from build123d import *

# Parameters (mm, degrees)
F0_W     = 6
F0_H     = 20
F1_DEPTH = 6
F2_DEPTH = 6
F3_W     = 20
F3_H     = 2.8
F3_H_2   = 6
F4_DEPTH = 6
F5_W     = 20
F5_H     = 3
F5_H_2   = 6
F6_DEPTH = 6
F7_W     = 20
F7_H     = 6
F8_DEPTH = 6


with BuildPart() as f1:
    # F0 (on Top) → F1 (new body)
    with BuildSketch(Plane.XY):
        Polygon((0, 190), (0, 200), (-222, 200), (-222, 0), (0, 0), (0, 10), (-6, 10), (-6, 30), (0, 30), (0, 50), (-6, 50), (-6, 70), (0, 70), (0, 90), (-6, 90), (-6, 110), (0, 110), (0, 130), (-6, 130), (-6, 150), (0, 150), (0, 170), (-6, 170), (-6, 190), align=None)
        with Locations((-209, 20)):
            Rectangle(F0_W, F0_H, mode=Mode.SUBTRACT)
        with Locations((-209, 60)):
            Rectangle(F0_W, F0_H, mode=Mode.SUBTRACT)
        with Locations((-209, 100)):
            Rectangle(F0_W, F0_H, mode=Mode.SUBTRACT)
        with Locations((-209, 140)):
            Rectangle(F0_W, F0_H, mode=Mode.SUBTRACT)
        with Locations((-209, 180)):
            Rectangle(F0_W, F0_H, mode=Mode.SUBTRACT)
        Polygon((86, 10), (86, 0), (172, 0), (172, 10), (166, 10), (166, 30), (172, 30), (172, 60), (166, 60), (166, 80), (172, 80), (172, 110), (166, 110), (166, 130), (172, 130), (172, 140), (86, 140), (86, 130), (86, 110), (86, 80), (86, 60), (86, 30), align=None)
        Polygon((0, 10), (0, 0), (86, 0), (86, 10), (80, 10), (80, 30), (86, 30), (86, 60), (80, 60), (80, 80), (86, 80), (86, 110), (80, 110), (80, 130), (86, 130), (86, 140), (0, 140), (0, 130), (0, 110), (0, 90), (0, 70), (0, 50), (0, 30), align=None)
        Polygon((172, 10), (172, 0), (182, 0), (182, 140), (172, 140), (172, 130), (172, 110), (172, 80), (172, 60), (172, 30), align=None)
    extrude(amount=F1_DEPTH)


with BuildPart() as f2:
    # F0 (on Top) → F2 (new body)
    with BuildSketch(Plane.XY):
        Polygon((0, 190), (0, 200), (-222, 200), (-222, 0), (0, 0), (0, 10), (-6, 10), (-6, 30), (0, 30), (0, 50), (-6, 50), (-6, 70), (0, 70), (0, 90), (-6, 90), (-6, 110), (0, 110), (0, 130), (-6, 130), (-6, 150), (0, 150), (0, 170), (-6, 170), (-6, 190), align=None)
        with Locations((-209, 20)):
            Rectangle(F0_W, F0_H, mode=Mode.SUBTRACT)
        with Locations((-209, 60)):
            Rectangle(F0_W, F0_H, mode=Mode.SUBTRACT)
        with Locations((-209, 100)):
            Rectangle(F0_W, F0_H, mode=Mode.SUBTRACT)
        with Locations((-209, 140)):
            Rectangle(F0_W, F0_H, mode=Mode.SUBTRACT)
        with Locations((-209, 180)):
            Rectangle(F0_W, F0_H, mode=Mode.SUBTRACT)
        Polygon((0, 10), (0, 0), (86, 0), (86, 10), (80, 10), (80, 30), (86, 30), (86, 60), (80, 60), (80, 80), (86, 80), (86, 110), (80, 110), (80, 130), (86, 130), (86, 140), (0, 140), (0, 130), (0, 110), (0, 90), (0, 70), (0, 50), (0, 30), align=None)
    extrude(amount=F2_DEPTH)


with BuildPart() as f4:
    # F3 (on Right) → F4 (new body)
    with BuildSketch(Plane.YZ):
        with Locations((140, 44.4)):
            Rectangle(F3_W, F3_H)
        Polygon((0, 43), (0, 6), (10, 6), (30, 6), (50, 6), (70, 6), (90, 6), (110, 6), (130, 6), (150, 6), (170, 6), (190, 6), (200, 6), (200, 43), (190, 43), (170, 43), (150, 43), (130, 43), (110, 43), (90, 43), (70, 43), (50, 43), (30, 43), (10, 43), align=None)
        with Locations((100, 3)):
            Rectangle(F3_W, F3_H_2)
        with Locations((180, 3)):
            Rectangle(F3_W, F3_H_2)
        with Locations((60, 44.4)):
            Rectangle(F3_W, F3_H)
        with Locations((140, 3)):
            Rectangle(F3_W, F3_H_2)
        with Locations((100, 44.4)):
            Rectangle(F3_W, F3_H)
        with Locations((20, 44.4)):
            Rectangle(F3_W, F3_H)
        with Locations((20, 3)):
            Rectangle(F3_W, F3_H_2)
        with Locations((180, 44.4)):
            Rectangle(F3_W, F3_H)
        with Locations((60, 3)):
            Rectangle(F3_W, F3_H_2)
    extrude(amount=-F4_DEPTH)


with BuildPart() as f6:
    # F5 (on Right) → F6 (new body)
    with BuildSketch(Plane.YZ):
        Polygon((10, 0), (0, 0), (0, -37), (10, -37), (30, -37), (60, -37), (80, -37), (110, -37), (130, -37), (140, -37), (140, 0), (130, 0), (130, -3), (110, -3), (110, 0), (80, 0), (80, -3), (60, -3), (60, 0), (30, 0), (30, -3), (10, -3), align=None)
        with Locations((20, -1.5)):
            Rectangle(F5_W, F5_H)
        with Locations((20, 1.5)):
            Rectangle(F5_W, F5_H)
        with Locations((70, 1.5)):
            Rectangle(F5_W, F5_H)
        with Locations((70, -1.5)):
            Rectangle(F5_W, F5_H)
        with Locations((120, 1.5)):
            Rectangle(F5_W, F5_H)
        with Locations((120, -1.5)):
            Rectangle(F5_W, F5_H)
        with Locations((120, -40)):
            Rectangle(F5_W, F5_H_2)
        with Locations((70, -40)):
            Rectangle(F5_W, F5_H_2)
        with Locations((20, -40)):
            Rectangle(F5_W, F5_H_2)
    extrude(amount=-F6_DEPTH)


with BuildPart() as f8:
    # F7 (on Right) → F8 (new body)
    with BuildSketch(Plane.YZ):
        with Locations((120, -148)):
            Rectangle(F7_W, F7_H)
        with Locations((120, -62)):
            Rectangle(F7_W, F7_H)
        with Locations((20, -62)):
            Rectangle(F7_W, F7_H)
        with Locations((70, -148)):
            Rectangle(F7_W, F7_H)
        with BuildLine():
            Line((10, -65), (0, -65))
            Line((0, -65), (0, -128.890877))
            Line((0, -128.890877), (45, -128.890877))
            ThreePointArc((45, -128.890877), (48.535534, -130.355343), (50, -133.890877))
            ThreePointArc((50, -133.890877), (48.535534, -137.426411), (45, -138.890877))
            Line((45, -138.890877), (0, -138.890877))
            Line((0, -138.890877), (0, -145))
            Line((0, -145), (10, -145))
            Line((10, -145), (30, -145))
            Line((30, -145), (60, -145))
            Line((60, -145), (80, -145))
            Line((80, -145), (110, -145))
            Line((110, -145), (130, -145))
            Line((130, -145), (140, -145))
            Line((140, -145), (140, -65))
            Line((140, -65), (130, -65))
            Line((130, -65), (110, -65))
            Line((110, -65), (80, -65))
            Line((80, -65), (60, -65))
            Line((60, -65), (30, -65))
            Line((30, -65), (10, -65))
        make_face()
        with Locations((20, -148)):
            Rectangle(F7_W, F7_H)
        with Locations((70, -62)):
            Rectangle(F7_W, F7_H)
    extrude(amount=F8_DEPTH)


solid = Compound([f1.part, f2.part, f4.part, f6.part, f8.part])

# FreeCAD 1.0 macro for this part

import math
import FreeCAD as App
import Part
import Sketcher

V = App.Vector


def add_polygon(sketch, points):
    """Adds a closed chain of lines whose ends are joined by coincident constraints."""
    first, n = sketch.GeometryCount, len(points)
    for a, b in zip(points, points[1:] + points[:1]):
        sketch.addGeometry(Part.LineSegment(App.Vector(*a, 0), App.Vector(*b, 0)), False)
    for i in range(n):
        sketch.addConstraint(Sketcher.Constraint("Coincident", first + i, 2, first + (i + 1) % n, 1))

doc = App.newDocument("Part")
body = doc.addObject("PartDesign::Body", "Body")

sketch1 = body.newObject("Sketcher::SketchObject", "Sketch")
sketch1.AttachmentSupport = (doc.getObject("XY_Plane"), [""])
sketch1.MapMode = "FlatFace"
add_polygon(sketch1, [(-6, 170), (-6, 190), (0, 190), (0, 200), (-222, 200), (-222, 0), (182, 0), (182, 140), (0, 140), (0, 130), (-6, 130), (-6, 150), (0, 150), (0, 170)])
add_polygon(sketch1, [(172, 10), (166, 10), (166, 30), (172, 30)])
add_polygon(sketch1, [(166, 130), (172, 130), (172, 110), (166, 110)])
add_polygon(sketch1, [(172, 60), (166, 60), (166, 80), (172, 80)])
add_polygon(sketch1, [(-206, 10), (-212, 10), (-212, 30), (-206, 30)])
add_polygon(sketch1, [(-206, 50), (-212, 50), (-212, 70), (-206, 70)])
add_polygon(sketch1, [(-6, 30), (0, 30), (0, 10), (-6, 10)])
add_polygon(sketch1, [(86, 10), (80, 10), (80, 30), (86, 30)])
add_polygon(sketch1, [(-6, 70), (0, 70), (0, 50), (-6, 50)])
add_polygon(sketch1, [(86, 60), (80, 60), (80, 80), (86, 80)])
add_polygon(sketch1, [(-206, 90), (-212, 90), (-212, 110), (-206, 110)])
add_polygon(sketch1, [(-206, 130), (-212, 130), (-212, 150), (-206, 150)])
add_polygon(sketch1, [(-206, 170), (-212, 170), (-212, 190), (-206, 190)])
add_polygon(sketch1, [(-6, 110), (0, 110), (0, 90), (-6, 90)])
add_polygon(sketch1, [(86, 110), (80, 110), (80, 130), (86, 130)])
sketch1.addConstraint(Sketcher.Constraint("Vertical", 0))
sketch1.addConstraint(Sketcher.Constraint("Horizontal", 1))
sketch1.addConstraint(Sketcher.Constraint("Vertical", 2))
sketch1.addConstraint(Sketcher.Constraint("Horizontal", 3))
sketch1.addConstraint(Sketcher.Constraint("Vertical", 4))
sketch1.addConstraint(Sketcher.Constraint("Horizontal", 5))
sketch1.addConstraint(Sketcher.Constraint("Vertical", 6))
sketch1.addConstraint(Sketcher.Constraint("Horizontal", 7))
sketch1.addConstraint(Sketcher.Constraint("Vertical", 8))
sketch1.addConstraint(Sketcher.Constraint("Horizontal", 9))
sketch1.addConstraint(Sketcher.Constraint("Vertical", 10))
sketch1.addConstraint(Sketcher.Constraint("Horizontal", 11))
sketch1.addConstraint(Sketcher.Constraint("Vertical", 12))
sketch1.addConstraint(Sketcher.Constraint("Horizontal", 13))
sketch1.addConstraint(Sketcher.Constraint("Horizontal", 14))
sketch1.addConstraint(Sketcher.Constraint("Vertical", 15))
sketch1.addConstraint(Sketcher.Constraint("Horizontal", 16))
sketch1.addConstraint(Sketcher.Constraint("Vertical", 17))
sketch1.addConstraint(Sketcher.Constraint("Horizontal", 18))
sketch1.addConstraint(Sketcher.Constraint("Vertical", 19))
sketch1.addConstraint(Sketcher.Constraint("Horizontal", 20))
sketch1.addConstraint(Sketcher.Constraint("Vertical", 21))
sketch1.addConstraint(Sketcher.Constraint("Horizontal", 22))
sketch1.addConstraint(Sketcher.Constraint("Vertical", 23))
sketch1.addConstraint(Sketcher.Constraint("Horizontal", 24))
sketch1.addConstraint(Sketcher.Constraint("Vertical", 25))
sketch1.addConstraint(Sketcher.Constraint("Horizontal", 26))
sketch1.addConstraint(Sketcher.Constraint("Vertical", 27))
sketch1.addConstraint(Sketcher.Constraint("Horizontal", 28))
sketch1.addConstraint(Sketcher.Constraint("Vertical", 29))
sketch1.addConstraint(Sketcher.Constraint("Horizontal", 30))
sketch1.addConstraint(Sketcher.Constraint("Vertical", 31))
sketch1.addConstraint(Sketcher.Constraint("Horizontal", 32))
sketch1.addConstraint(Sketcher.Constraint("Vertical", 33))
sketch1.addConstraint(Sketcher.Constraint("Horizontal", 34))
sketch1.addConstraint(Sketcher.Constraint("Vertical", 35))
sketch1.addConstraint(Sketcher.Constraint("Horizontal", 36))
sketch1.addConstraint(Sketcher.Constraint("Vertical", 37))
sketch1.addConstraint(Sketcher.Constraint("Horizontal", 38))
sketch1.addConstraint(Sketcher.Constraint("Vertical", 39))
sketch1.addConstraint(Sketcher.Constraint("Horizontal", 40))
sketch1.addConstraint(Sketcher.Constraint("Vertical", 41))
sketch1.addConstraint(Sketcher.Constraint("Horizontal", 42))
sketch1.addConstraint(Sketcher.Constraint("Vertical", 43))
sketch1.addConstraint(Sketcher.Constraint("Horizontal", 44))
sketch1.addConstraint(Sketcher.Constraint("Vertical", 45))
sketch1.addConstraint(Sketcher.Constraint("Horizontal", 46))
sketch1.addConstraint(Sketcher.Constraint("Vertical", 47))
sketch1.addConstraint(Sketcher.Constraint("Horizontal", 48))
sketch1.addConstraint(Sketcher.Constraint("Vertical", 49))
sketch1.addConstraint(Sketcher.Constraint("Horizontal", 50))
sketch1.addConstraint(Sketcher.Constraint("Vertical", 51))
sketch1.addConstraint(Sketcher.Constraint("Horizontal", 52))
sketch1.addConstraint(Sketcher.Constraint("Vertical", 53))
sketch1.addConstraint(Sketcher.Constraint("Horizontal", 54))
sketch1.addConstraint(Sketcher.Constraint("Vertical", 55))
sketch1.addConstraint(Sketcher.Constraint("Horizontal", 56))
sketch1.addConstraint(Sketcher.Constraint("Vertical", 57))
sketch1.addConstraint(Sketcher.Constraint("Horizontal", 58))
sketch1.addConstraint(Sketcher.Constraint("Vertical", 59))
sketch1.addConstraint(Sketcher.Constraint("Horizontal", 60))
sketch1.addConstraint(Sketcher.Constraint("Vertical", 61))
sketch1.addConstraint(Sketcher.Constraint("Horizontal", 62))
sketch1.addConstraint(Sketcher.Constraint("Vertical", 63))
sketch1.addConstraint(Sketcher.Constraint("Horizontal", 64))
sketch1.addConstraint(Sketcher.Constraint("Vertical", 65))
sketch1.addConstraint(Sketcher.Constraint("Horizontal", 66))
sketch1.addConstraint(Sketcher.Constraint("Vertical", 67))
sketch1.addConstraint(Sketcher.Constraint("Horizontal", 68))
sketch1.addConstraint(Sketcher.Constraint("Vertical", 69))
sketch1.addConstraint(Sketcher.Constraint("PointOnObject", 1, 2, -2))
sketch1.addConstraint(Sketcher.Constraint("PointOnObject", 4, 2, -1))
sketch1.addConstraint(Sketcher.Constraint("PointOnObject", 7, 2, -2))
sketch1.addConstraint(Sketcher.Constraint("PointOnObject", 11, 2, -2))
sketch1.addConstraint(Sketcher.Constraint("PointOnObject", 34, 2, -2))
sketch1.addConstraint(Sketcher.Constraint("PointOnObject", 42, 2, -2))
sketch1.addConstraint(Sketcher.Constraint("PointOnObject", 62, 2, -2))
sketch1.addConstraint(Sketcher.Constraint("Horizontal", 9, 2, 18, 2))
sketch1.addConstraint(Sketcher.Constraint("Horizontal", 17, 2, 26, 2))
sketch1.addConstraint(Sketcher.Constraint("Horizontal", 16, 2, 27, 2))
sketch1.addConstraint(Sketcher.Constraint("Horizontal", 28, 2, 34, 2))
sketch1.addConstraint(Sketcher.Constraint("Horizontal", 29, 2, 35, 2))
sketch1.addConstraint(Sketcher.Constraint("Horizontal", 36, 2, 38, 2))
sketch1.addConstraint(Sketcher.Constraint("Horizontal", 37, 2, 39, 2))
sketch1.addConstraint(Sketcher.Constraint("Horizontal", 32, 2, 42, 2))
sketch1.addConstraint(Sketcher.Constraint("Horizontal", 33, 2, 43, 2))
sketch1.addConstraint(Sketcher.Constraint("Horizontal", 25, 2, 46, 2))
sketch1.addConstraint(Sketcher.Constraint("Horizontal", 24, 2, 47, 2))
sketch1.addConstraint(Sketcher.Constraint("Horizontal", 20, 2, 51, 2))
sketch1.addConstraint(Sketcher.Constraint("Horizontal", 21, 2, 54, 2))
sketch1.addConstraint(Sketcher.Constraint("Horizontal", 11, 2, 55, 2))
sketch1.addConstraint(Sketcher.Constraint("Horizontal", 13, 2, 58, 2))
sketch1.addConstraint(Sketcher.Constraint("Horizontal", 1, 2, 59, 2))
sketch1.addConstraint(Sketcher.Constraint("Horizontal", 52, 2, 62, 2))
sketch1.addConstraint(Sketcher.Constraint("Horizontal", 53, 2, 63, 2))
sketch1.addConstraint(Sketcher.Constraint("Horizontal", 65, 2, 66, 2))
sketch1.addConstraint(Sketcher.Constraint("Horizontal", 57, 2, 67, 2))
sketch1.addConstraint(Sketcher.Constraint("Vertical", 0, 2, 9, 2))
sketch1.addConstraint(Sketcher.Constraint("Vertical", 17, 2, 18, 2))
sketch1.addConstraint(Sketcher.Constraint("Vertical", 15, 2, 20, 2))
sketch1.addConstraint(Sketcher.Constraint("Vertical", 21, 2, 22, 2))
sketch1.addConstraint(Sketcher.Constraint("Vertical", 19, 2, 24, 2))
sketch1.addConstraint(Sketcher.Constraint("Vertical", 27, 2, 30, 2))
sketch1.addConstraint(Sketcher.Constraint("Vertical", 29, 2, 32, 2))
sketch1.addConstraint(Sketcher.Constraint("Vertical", 13, 2, 36, 2))
sketch1.addConstraint(Sketcher.Constraint("Vertical", 37, 2, 44, 2))
sketch1.addConstraint(Sketcher.Constraint("Vertical", 39, 2, 46, 2))
sketch1.addConstraint(Sketcher.Constraint("Vertical", 41, 2, 48, 2))
sketch1.addConstraint(Sketcher.Constraint("Vertical", 31, 2, 50, 2))
sketch1.addConstraint(Sketcher.Constraint("Vertical", 33, 2, 52, 2))
sketch1.addConstraint(Sketcher.Constraint("Vertical", 51, 2, 54, 2))
sketch1.addConstraint(Sketcher.Constraint("Vertical", 53, 2, 56, 2))
sketch1.addConstraint(Sketcher.Constraint("Vertical", 55, 2, 58, 2))
sketch1.addConstraint(Sketcher.Constraint("Vertical", 57, 2, 60, 2))
sketch1.addConstraint(Sketcher.Constraint("Vertical", 45, 2, 64, 2))
sketch1.addConstraint(Sketcher.Constraint("Vertical", 47, 2, 66, 2))
sketch1.addConstraint(Sketcher.Constraint("Vertical", 49, 2, 68, 2))
sketch1.addConstraint(Sketcher.Constraint("Equal", 13, 14))
sketch1.addConstraint(Sketcher.Constraint("Equal", 24, 26))
sketch1.addConstraint(Sketcher.Constraint("Equal", 36, 38))
sketch1.addConstraint(Sketcher.Constraint("Equal", 2, 8))
sketch1.addConstraint(Sketcher.Constraint("Equal", 0, 10))
sketch1.addConstraint(Sketcher.Constraint("Equal", 10, 12))
sketch1.addConstraint(Sketcher.Constraint("Equal", 12, 15))
sketch1.addConstraint(Sketcher.Constraint("Equal", 17, 19))
sketch1.addConstraint(Sketcher.Constraint("Equal", 21, 23))
sketch1.addConstraint(Sketcher.Constraint("Equal", 29, 31))
sketch1.addConstraint(Sketcher.Constraint("Equal", 49, 51))
sketch1.addConstraint(Sketcher.Constraint("DistanceX", 1, 1, 1, 2, 6.0))
sketch1.addConstraint(Sketcher.Constraint("DistanceX", 3, 2, 3, 1, 222.0))
sketch1.addConstraint(Sketcher.Constraint("DistanceX", 5, 1, 5, 2, 404.0))
sketch1.addConstraint(Sketcher.Constraint("DistanceY", 0, 1, 0, 2, 20.0))
sketch1.addConstraint(Sketcher.Constraint("DistanceY", 2, 1, 2, 2, 10.0))
sketch1.addConstraint(Sketcher.Constraint("DistanceY", 4, 2, 4, 1, 200.0))
sketch1.addConstraint(Sketcher.Constraint("DistanceX", -1, 1, 14, 2, 166.0))
sketch1.addConstraint(Sketcher.Constraint("DistanceY", -1, 1, 14, 2, 10.0))
sketch1.addConstraint(Sketcher.Constraint("DistanceY", -1, 1, 22, 2, 60.0))
sketch1.addConstraint(Sketcher.Constraint("DistanceX", 26, 2, -1, 1, 212.0))
sketch1.addConstraint(Sketcher.Constraint("DistanceY", -1, 1, 30, 2, 50.0))
sketch1.addConstraint(Sketcher.Constraint("DistanceX", -1, 1, 38, 2, 80.0))
pad1 = body.newObject("PartDesign::Pad", "Pad")
pad1.Profile = sketch1
pad1.Length = 6
body2 = doc.addObject("PartDesign::Body", "Body001")

sketch2 = body2.newObject("Sketcher::SketchObject", "Sketch001")
sketch2.AttachmentSupport = (doc.getObject("XY_Plane001"), [""])
sketch2.MapMode = "FlatFace"
add_polygon(sketch2, [(-6, 190), (0, 190), (0, 200), (-222, 200), (-222, 0), (86, 0), (86, 10), (80, 10), (80, 30), (86, 30), (86, 60), (80, 60), (80, 80), (86, 80), (86, 110), (80, 110), (80, 130), (86, 130), (86, 140), (0, 140), (0, 130), (-6, 130), (-6, 150), (0, 150), (0, 170), (-6, 170)])
add_polygon(sketch2, [(-206, 10), (-212, 10), (-212, 30), (-206, 30)])
add_polygon(sketch2, [(-206, 50), (-212, 50), (-212, 70), (-206, 70)])
add_polygon(sketch2, [(-6, 30), (0, 30), (0, 10), (-6, 10)])
add_polygon(sketch2, [(-6, 70), (0, 70), (0, 50), (-6, 50)])
add_polygon(sketch2, [(-206, 90), (-212, 90), (-212, 110), (-206, 110)])
add_polygon(sketch2, [(-206, 130), (-212, 130), (-212, 150), (-206, 150)])
add_polygon(sketch2, [(-206, 170), (-212, 170), (-212, 190), (-206, 190)])
add_polygon(sketch2, [(-6, 110), (0, 110), (0, 90), (-6, 90)])
sketch2.addConstraint(Sketcher.Constraint("Horizontal", 0))
sketch2.addConstraint(Sketcher.Constraint("Vertical", 1))
sketch2.addConstraint(Sketcher.Constraint("Horizontal", 2))
sketch2.addConstraint(Sketcher.Constraint("Vertical", 3))
sketch2.addConstraint(Sketcher.Constraint("Horizontal", 4))
sketch2.addConstraint(Sketcher.Constraint("Vertical", 5))
sketch2.addConstraint(Sketcher.Constraint("Horizontal", 6))
sketch2.addConstraint(Sketcher.Constraint("Vertical", 7))
sketch2.addConstraint(Sketcher.Constraint("Horizontal", 8))
sketch2.addConstraint(Sketcher.Constraint("Vertical", 9))
sketch2.addConstraint(Sketcher.Constraint("Horizontal", 10))
sketch2.addConstraint(Sketcher.Constraint("Vertical", 11))
sketch2.addConstraint(Sketcher.Constraint("Horizontal", 12))
sketch2.addConstraint(Sketcher.Constraint("Vertical", 13))
sketch2.addConstraint(Sketcher.Constraint("Horizontal", 14))
sketch2.addConstraint(Sketcher.Constraint("Vertical", 15))
sketch2.addConstraint(Sketcher.Constraint("Horizontal", 16))
sketch2.addConstraint(Sketcher.Constraint("Vertical", 17))
sketch2.addConstraint(Sketcher.Constraint("Horizontal", 18))
sketch2.addConstraint(Sketcher.Constraint("Vertical", 19))
sketch2.addConstraint(Sketcher.Constraint("Horizontal", 20))
sketch2.addConstraint(Sketcher.Constraint("Vertical", 21))
sketch2.addConstraint(Sketcher.Constraint("Horizontal", 22))
sketch2.addConstraint(Sketcher.Constraint("Vertical", 23))
sketch2.addConstraint(Sketcher.Constraint("Horizontal", 24))
sketch2.addConstraint(Sketcher.Constraint("Vertical", 25))
sketch2.addConstraint(Sketcher.Constraint("Horizontal", 26))
sketch2.addConstraint(Sketcher.Constraint("Vertical", 27))
sketch2.addConstraint(Sketcher.Constraint("Horizontal", 28))
sketch2.addConstraint(Sketcher.Constraint("Vertical", 29))
sketch2.addConstraint(Sketcher.Constraint("Horizontal", 30))
sketch2.addConstraint(Sketcher.Constraint("Vertical", 31))
sketch2.addConstraint(Sketcher.Constraint("Horizontal", 32))
sketch2.addConstraint(Sketcher.Constraint("Vertical", 33))
sketch2.addConstraint(Sketcher.Constraint("Horizontal", 34))
sketch2.addConstraint(Sketcher.Constraint("Vertical", 35))
sketch2.addConstraint(Sketcher.Constraint("Horizontal", 36))
sketch2.addConstraint(Sketcher.Constraint("Vertical", 37))
sketch2.addConstraint(Sketcher.Constraint("Horizontal", 38))
sketch2.addConstraint(Sketcher.Constraint("Vertical", 39))
sketch2.addConstraint(Sketcher.Constraint("Horizontal", 40))
sketch2.addConstraint(Sketcher.Constraint("Vertical", 41))
sketch2.addConstraint(Sketcher.Constraint("Horizontal", 42))
sketch2.addConstraint(Sketcher.Constraint("Vertical", 43))
sketch2.addConstraint(Sketcher.Constraint("Horizontal", 44))
sketch2.addConstraint(Sketcher.Constraint("Vertical", 45))
sketch2.addConstraint(Sketcher.Constraint("Horizontal", 46))
sketch2.addConstraint(Sketcher.Constraint("Vertical", 47))
sketch2.addConstraint(Sketcher.Constraint("Horizontal", 48))
sketch2.addConstraint(Sketcher.Constraint("Vertical", 49))
sketch2.addConstraint(Sketcher.Constraint("Horizontal", 50))
sketch2.addConstraint(Sketcher.Constraint("Vertical", 51))
sketch2.addConstraint(Sketcher.Constraint("Horizontal", 52))
sketch2.addConstraint(Sketcher.Constraint("Vertical", 53))
sketch2.addConstraint(Sketcher.Constraint("Horizontal", 54))
sketch2.addConstraint(Sketcher.Constraint("Vertical", 55))
sketch2.addConstraint(Sketcher.Constraint("Horizontal", 56))
sketch2.addConstraint(Sketcher.Constraint("Vertical", 57))
sketch2.addConstraint(Sketcher.Constraint("PointOnObject", 0, 2, -2))
sketch2.addConstraint(Sketcher.Constraint("PointOnObject", 3, 2, -1))
sketch2.addConstraint(Sketcher.Constraint("PointOnObject", 18, 2, -2))
sketch2.addConstraint(Sketcher.Constraint("PointOnObject", 22, 2, -2))
sketch2.addConstraint(Sketcher.Constraint("PointOnObject", 34, 2, -2))
sketch2.addConstraint(Sketcher.Constraint("PointOnObject", 38, 2, -2))
sketch2.addConstraint(Sketcher.Constraint("PointOnObject", 54, 2, -2))
sketch2.addConstraint(Sketcher.Constraint("Horizontal", 16, 2, 19, 2))
sketch2.addConstraint(Sketcher.Constraint("Horizontal", 6, 2, 26, 2))
sketch2.addConstraint(Sketcher.Constraint("Horizontal", 8, 2, 27, 2))
sketch2.addConstraint(Sketcher.Constraint("Horizontal", 28, 2, 34, 2))
sketch2.addConstraint(Sketcher.Constraint("Horizontal", 29, 2, 35, 2))
sketch2.addConstraint(Sketcher.Constraint("Horizontal", 32, 2, 38, 2))
sketch2.addConstraint(Sketcher.Constraint("Horizontal", 33, 2, 39, 2))
sketch2.addConstraint(Sketcher.Constraint("Horizontal", 14, 2, 43, 2))
sketch2.addConstraint(Sketcher.Constraint("Horizontal", 20, 2, 46, 2))
sketch2.addConstraint(Sketcher.Constraint("Horizontal", 22, 2, 47, 2))
sketch2.addConstraint(Sketcher.Constraint("Horizontal", 24, 2, 50, 2))
sketch2.addConstraint(Sketcher.Constraint("Horizontal", 25, 2, 51, 2))
sketch2.addConstraint(Sketcher.Constraint("Horizontal", 44, 2, 54, 2))
sketch2.addConstraint(Sketcher.Constraint("Horizontal", 45, 2, 55, 2))
sketch2.addConstraint(Sketcher.Constraint("Vertical", 5, 2, 8, 2))
sketch2.addConstraint(Sketcher.Constraint("Vertical", 7, 2, 10, 2))
sketch2.addConstraint(Sketcher.Constraint("Vertical", 9, 2, 12, 2))
sketch2.addConstraint(Sketcher.Constraint("Vertical", 11, 2, 14, 2))
sketch2.addConstraint(Sketcher.Constraint("Vertical", 13, 2, 16, 2))
sketch2.addConstraint(Sketcher.Constraint("Vertical", 21, 2, 24, 2))
sketch2.addConstraint(Sketcher.Constraint("Vertical", 27, 2, 30, 2))
sketch2.addConstraint(Sketcher.Constraint("Vertical", 29, 2, 32, 2))
sketch2.addConstraint(Sketcher.Constraint("Vertical", 25, 2, 36, 2))
sketch2.addConstraint(Sketcher.Constraint("Vertical", 37, 2, 40, 2))
sketch2.addConstraint(Sketcher.Constraint("Vertical", 31, 2, 42, 2))
sketch2.addConstraint(Sketcher.Constraint("Vertical", 33, 2, 44, 2))
sketch2.addConstraint(Sketcher.Constraint("Vertical", 43, 2, 46, 2))
sketch2.addConstraint(Sketcher.Constraint("Vertical", 45, 2, 48, 2))
sketch2.addConstraint(Sketcher.Constraint("Vertical", 47, 2, 50, 2))
sketch2.addConstraint(Sketcher.Constraint("Vertical", 49, 2, 52, 2))
sketch2.addConstraint(Sketcher.Constraint("Vertical", 41, 2, 56, 2))
sketch2.addConstraint(Sketcher.Constraint("Equal", 0, 6))
sketch2.addConstraint(Sketcher.Constraint("Equal", 24, 26))
sketch2.addConstraint(Sketcher.Constraint("Equal", 1, 5))
sketch2.addConstraint(Sketcher.Constraint("Equal", 7, 11))
sketch2.addConstraint(Sketcher.Constraint("Equal", 9, 13))
sketch2.addConstraint(Sketcher.Constraint("Equal", 11, 15))
sketch2.addConstraint(Sketcher.Constraint("Equal", 5, 17))
sketch2.addConstraint(Sketcher.Constraint("Equal", 15, 21))
sketch2.addConstraint(Sketcher.Constraint("Equal", 21, 23))
sketch2.addConstraint(Sketcher.Constraint("Equal", 23, 25))
sketch2.addConstraint(Sketcher.Constraint("Equal", 29, 31))
sketch2.addConstraint(Sketcher.Constraint("Equal", 41, 43))
sketch2.addConstraint(Sketcher.Constraint("DistanceX", 0, 1, 0, 2, 6.0))
sketch2.addConstraint(Sketcher.Constraint("DistanceX", 2, 2, 2, 1, 222.0))
sketch2.addConstraint(Sketcher.Constraint("DistanceX", 4, 1, 4, 2, 308.0))
sketch2.addConstraint(Sketcher.Constraint("DistanceY", 1, 1, 1, 2, 10.0))
sketch2.addConstraint(Sketcher.Constraint("DistanceY", 3, 2, 3, 1, 200.0))
sketch2.addConstraint(Sketcher.Constraint("DistanceY", 7, 1, 7, 2, 20.0))
sketch2.addConstraint(Sketcher.Constraint("DistanceX", 26, 2, -1, 1, 212.0))
sketch2.addConstraint(Sketcher.Constraint("DistanceY", -1, 1, 30, 2, 50.0))
pad2 = body2.newObject("PartDesign::Pad", "Pad001")
pad2.Profile = sketch2
pad2.Length = 6
body3 = doc.addObject("PartDesign::Body", "Body002")

sketch3 = body3.newObject("Sketcher::SketchObject", "Sketch002")
sketch3.AttachmentSupport = (doc.getObject("YZ_Plane002"), [""])
sketch3.MapMode = "FlatFace"
add_polygon(sketch3, [(130, 45.8), (130, 43), (110, 43), (110, 45.8), (90, 45.8), (90, 43), (70, 43), (70, 45.8), (50, 45.8), (50, 43), (30, 43), (30, 45.8), (10, 45.8), (10, 43), (0, 43), (0, 6), (10, 6), (10, 0), (30, 0), (30, 6), (50, 6), (50, 0), (70, 0), (70, 6), (90, 6), (90, 0), (110, 0), (110, 6), (130, 6), (130, 0), (150, 0), (150, 6), (170, 6), (170, 0), (190, 0), (190, 6), (200, 6), (200, 43), (190, 43), (190, 45.8), (170, 45.8), (170, 43), (150, 43), (150, 45.8)])
sketch3.addConstraint(Sketcher.Constraint("Vertical", 0))
sketch3.addConstraint(Sketcher.Constraint("Horizontal", 1))
sketch3.addConstraint(Sketcher.Constraint("Vertical", 2))
sketch3.addConstraint(Sketcher.Constraint("Horizontal", 3))
sketch3.addConstraint(Sketcher.Constraint("Vertical", 4))
sketch3.addConstraint(Sketcher.Constraint("Horizontal", 5))
sketch3.addConstraint(Sketcher.Constraint("Vertical", 6))
sketch3.addConstraint(Sketcher.Constraint("Horizontal", 7))
sketch3.addConstraint(Sketcher.Constraint("Vertical", 8))
sketch3.addConstraint(Sketcher.Constraint("Horizontal", 9))
sketch3.addConstraint(Sketcher.Constraint("Vertical", 10))
sketch3.addConstraint(Sketcher.Constraint("Horizontal", 11))
sketch3.addConstraint(Sketcher.Constraint("Vertical", 12))
sketch3.addConstraint(Sketcher.Constraint("Horizontal", 13))
sketch3.addConstraint(Sketcher.Constraint("Vertical", 14))
sketch3.addConstraint(Sketcher.Constraint("Horizontal", 15))
sketch3.addConstraint(Sketcher.Constraint("Vertical", 16))
sketch3.addConstraint(Sketcher.Constraint("Horizontal", 17))
sketch3.addConstraint(Sketcher.Constraint("Vertical", 18))
sketch3.addConstraint(Sketcher.Constraint("Horizontal", 19))
sketch3.addConstraint(Sketcher.Constraint("Vertical", 20))
sketch3.addConstraint(Sketcher.Constraint("Horizontal", 21))
sketch3.addConstraint(Sketcher.Constraint("Vertical", 22))
sketch3.addConstraint(Sketcher.Constraint("Horizontal", 23))
sketch3.addConstraint(Sketcher.Constraint("Vertical", 24))
sketch3.addConstraint(Sketcher.Constraint("Horizontal", 25))
sketch3.addConstraint(Sketcher.Constraint("Vertical", 26))
sketch3.addConstraint(Sketcher.Constraint("Horizontal", 27))
sketch3.addConstraint(Sketcher.Constraint("Vertical", 28))
sketch3.addConstraint(Sketcher.Constraint("Horizontal", 29))
sketch3.addConstraint(Sketcher.Constraint("Vertical", 30))
sketch3.addConstraint(Sketcher.Constraint("Horizontal", 31))
sketch3.addConstraint(Sketcher.Constraint("Vertical", 32))
sketch3.addConstraint(Sketcher.Constraint("Horizontal", 33))
sketch3.addConstraint(Sketcher.Constraint("Vertical", 34))
sketch3.addConstraint(Sketcher.Constraint("Horizontal", 35))
sketch3.addConstraint(Sketcher.Constraint("Vertical", 36))
sketch3.addConstraint(Sketcher.Constraint("Horizontal", 37))
sketch3.addConstraint(Sketcher.Constraint("Vertical", 38))
sketch3.addConstraint(Sketcher.Constraint("Horizontal", 39))
sketch3.addConstraint(Sketcher.Constraint("Vertical", 40))
sketch3.addConstraint(Sketcher.Constraint("Horizontal", 41))
sketch3.addConstraint(Sketcher.Constraint("Vertical", 42))
sketch3.addConstraint(Sketcher.Constraint("Horizontal", 43))
sketch3.addConstraint(Sketcher.Constraint("PointOnObject", 13, 2, -2))
sketch3.addConstraint(Sketcher.Constraint("PointOnObject", 16, 2, -1))
sketch3.addConstraint(Sketcher.Constraint("PointOnObject", 20, 2, -1))
sketch3.addConstraint(Sketcher.Constraint("PointOnObject", 24, 2, -1))
sketch3.addConstraint(Sketcher.Constraint("PointOnObject", 28, 2, -1))
sketch3.addConstraint(Sketcher.Constraint("PointOnObject", 32, 2, -1))
sketch3.addConstraint(Sketcher.Constraint("Horizontal", 1, 2, 4, 2))
sketch3.addConstraint(Sketcher.Constraint("Horizontal", 3, 2, 6, 2))
sketch3.addConstraint(Sketcher.Constraint("Horizontal", 5, 2, 8, 2))
sketch3.addConstraint(Sketcher.Constraint("Horizontal", 7, 2, 10, 2))
sketch3.addConstraint(Sketcher.Constraint("Horizontal", 9, 2, 12, 2))
sketch3.addConstraint(Sketcher.Constraint("Horizontal", 15, 2, 18, 2))
sketch3.addConstraint(Sketcher.Constraint("Horizontal", 19, 2, 22, 2))
sketch3.addConstraint(Sketcher.Constraint("Horizontal", 23, 2, 26, 2))
sketch3.addConstraint(Sketcher.Constraint("Horizontal", 27, 2, 30, 2))
sketch3.addConstraint(Sketcher.Constraint("Horizontal", 31, 2, 34, 2))
sketch3.addConstraint(Sketcher.Constraint("Horizontal", 13, 2, 36, 2))
sketch3.addConstraint(Sketcher.Constraint("Horizontal", 11, 2, 38, 2))
sketch3.addConstraint(Sketcher.Constraint("Horizontal", 37, 2, 40, 2))
sketch3.addConstraint(Sketcher.Constraint("Horizontal", 39, 2, 42, 2))
sketch3.addConstraint(Sketcher.Constraint("Vertical", 12, 2, 15, 2))
sketch3.addConstraint(Sketcher.Constraint("Vertical", 10, 2, 17, 2))
sketch3.addConstraint(Sketcher.Constraint("Vertical", 8, 2, 19, 2))
sketch3.addConstraint(Sketcher.Constraint("Vertical", 6, 2, 21, 2))
sketch3.addConstraint(Sketcher.Constraint("Vertical", 4, 2, 23, 2))
sketch3.addConstraint(Sketcher.Constraint("Vertical", 2, 2, 25, 2))
sketch3.addConstraint(Sketcher.Constraint("Vertical", 0, 2, 27, 2))
sketch3.addConstraint(Sketcher.Constraint("Vertical", 34, 2, 37, 2))
sketch3.addConstraint(Sketcher.Constraint("Vertical", 32, 2, 39, 2))
sketch3.addConstraint(Sketcher.Constraint("Vertical", 30, 2, 41, 2))
sketch3.addConstraint(Sketcher.Constraint("Equal", 1, 3))
sketch3.addConstraint(Sketcher.Constraint("Equal", 3, 5))
sketch3.addConstraint(Sketcher.Constraint("Equal", 5, 7))
sketch3.addConstraint(Sketcher.Constraint("Equal", 7, 9))
sketch3.addConstraint(Sketcher.Constraint("Equal", 9, 11))
sketch3.addConstraint(Sketcher.Constraint("Equal", 27, 29))
sketch3.addConstraint(Sketcher.Constraint("Equal", 29, 31))
sketch3.addConstraint(Sketcher.Constraint("Equal", 31, 33))
sketch3.addConstraint(Sketcher.Constraint("Equal", 15, 35))
sketch3.addConstraint(Sketcher.Constraint("DistanceX", 1, 2, 1, 1, 20.0))
sketch3.addConstraint(Sketcher.Constraint("DistanceX", 13, 2, 13, 1, 10.0))
sketch3.addConstraint(Sketcher.Constraint("DistanceY", 14, 2, 14, 1, 37.0))
sketch3.addConstraint(Sketcher.Constraint("DistanceY", 16, 2, 16, 1, 6.0))
sketch3.addConstraint(Sketcher.Constraint("DistanceY", 0, 2, 0, 1, 2.8))
pad3 = body3.newObject("PartDesign::Pad", "Pad002")
pad3.Profile = sketch3
pad3.Length = 6
pad3.Reversed = True
body4 = doc.addObject("PartDesign::Body", "Body003")

sketch4 = body4.newObject("Sketcher::SketchObject", "Sketch003")
sketch4.AttachmentSupport = (doc.getObject("YZ_Plane003"), [""])
sketch4.MapMode = "FlatFace"
add_polygon(sketch4, [(0, 0), (0, -37), (10, -37), (10, -43), (30, -43), (30, -37), (60, -37), (60, -43), (80, -43), (80, -37), (110, -37), (110, -43), (130, -43), (130, -37), (140, -37), (140, 0), (130, 0), (130, 3), (110, 3), (110, 0), (80, 0), (80, 3), (60, 3), (60, 0), (30, 0), (30, 3), (10, 3), (10, 0)])
sketch4.addConstraint(Sketcher.Constraint("Vertical", 0))
sketch4.addConstraint(Sketcher.Constraint("Horizontal", 1))
sketch4.addConstraint(Sketcher.Constraint("Vertical", 2))
sketch4.addConstraint(Sketcher.Constraint("Horizontal", 3))
sketch4.addConstraint(Sketcher.Constraint("Vertical", 4))
sketch4.addConstraint(Sketcher.Constraint("Horizontal", 5))
sketch4.addConstraint(Sketcher.Constraint("Vertical", 6))
sketch4.addConstraint(Sketcher.Constraint("Horizontal", 7))
sketch4.addConstraint(Sketcher.Constraint("Vertical", 8))
sketch4.addConstraint(Sketcher.Constraint("Horizontal", 9))
sketch4.addConstraint(Sketcher.Constraint("Vertical", 10))
sketch4.addConstraint(Sketcher.Constraint("Horizontal", 11))
sketch4.addConstraint(Sketcher.Constraint("Vertical", 12))
sketch4.addConstraint(Sketcher.Constraint("Horizontal", 13))
sketch4.addConstraint(Sketcher.Constraint("Vertical", 14))
sketch4.addConstraint(Sketcher.Constraint("Horizontal", 15))
sketch4.addConstraint(Sketcher.Constraint("Vertical", 16))
sketch4.addConstraint(Sketcher.Constraint("Horizontal", 17))
sketch4.addConstraint(Sketcher.Constraint("Vertical", 18))
sketch4.addConstraint(Sketcher.Constraint("Horizontal", 19))
sketch4.addConstraint(Sketcher.Constraint("Vertical", 20))
sketch4.addConstraint(Sketcher.Constraint("Horizontal", 21))
sketch4.addConstraint(Sketcher.Constraint("Vertical", 22))
sketch4.addConstraint(Sketcher.Constraint("Horizontal", 23))
sketch4.addConstraint(Sketcher.Constraint("Vertical", 24))
sketch4.addConstraint(Sketcher.Constraint("Horizontal", 25))
sketch4.addConstraint(Sketcher.Constraint("Vertical", 26))
sketch4.addConstraint(Sketcher.Constraint("Horizontal", 27))
sketch4.addConstraint(Sketcher.Constraint("Coincident", 27, 2, -1, 1))
sketch4.addConstraint(Sketcher.Constraint("PointOnObject", 14, 2, -1))
sketch4.addConstraint(Sketcher.Constraint("PointOnObject", 18, 2, -1))
sketch4.addConstraint(Sketcher.Constraint("PointOnObject", 22, 2, -1))
sketch4.addConstraint(Sketcher.Constraint("Horizontal", 1, 2, 4, 2))
sketch4.addConstraint(Sketcher.Constraint("Horizontal", 3, 2, 6, 2))
sketch4.addConstraint(Sketcher.Constraint("Horizontal", 5, 2, 8, 2))
sketch4.addConstraint(Sketcher.Constraint("Horizontal", 7, 2, 10, 2))
sketch4.addConstraint(Sketcher.Constraint("Horizontal", 9, 2, 12, 2))
sketch4.addConstraint(Sketcher.Constraint("Horizontal", 17, 2, 20, 2))
sketch4.addConstraint(Sketcher.Constraint("Horizontal", 21, 2, 24, 2))
sketch4.addConstraint(Sketcher.Constraint("Vertical", 12, 2, 15, 2))
sketch4.addConstraint(Sketcher.Constraint("Vertical", 10, 2, 17, 2))
sketch4.addConstraint(Sketcher.Constraint("Vertical", 8, 2, 19, 2))
sketch4.addConstraint(Sketcher.Constraint("Vertical", 6, 2, 21, 2))
sketch4.addConstraint(Sketcher.Constraint("Vertical", 4, 2, 23, 2))
sketch4.addConstraint(Sketcher.Constraint("Vertical", 2, 2, 25, 2))
sketch4.addConstraint(Sketcher.Constraint("Equal", 3, 7))
sketch4.addConstraint(Sketcher.Constraint("Equal", 5, 9))
sketch4.addConstraint(Sketcher.Constraint("Equal", 7, 11))
sketch4.addConstraint(Sketcher.Constraint("Equal", 1, 13))
sketch4.addConstraint(Sketcher.Constraint("DistanceX", 1, 1, 1, 2, 10.0))
sketch4.addConstraint(Sketcher.Constraint("DistanceX", 3, 1, 3, 2, 20.0))
sketch4.addConstraint(Sketcher.Constraint("DistanceX", 5, 1, 5, 2, 30.0))
sketch4.addConstraint(Sketcher.Constraint("DistanceY", 0, 2, 0, 1, 37.0))
sketch4.addConstraint(Sketcher.Constraint("DistanceY", 2, 2, 2, 1, 6.0))
sketch4.addConstraint(Sketcher.Constraint("DistanceY", 16, 1, 16, 2, 3.0))
pad4 = body4.newObject("PartDesign::Pad", "Pad003")
pad4.Profile = sketch4
pad4.Length = 6
pad4.Reversed = True
body5 = doc.addObject("PartDesign::Body", "Body004")

sketch5 = body5.newObject("Sketcher::SketchObject", "Sketch004")
sketch5.AttachmentSupport = (doc.getObject("YZ_Plane004"), [""])
sketch5.MapMode = "FlatFace"
sketch5.addGeometry(Part.LineSegment(V(110, -145, 0), V(110, -151, 0)), False)
sketch5.addGeometry(Part.LineSegment(V(110, -151, 0), V(130, -151, 0)), False)
sketch5.addGeometry(Part.LineSegment(V(130, -151, 0), V(130, -145, 0)), False)
sketch5.addGeometry(Part.LineSegment(V(130, -145, 0), V(140, -145, 0)), False)
sketch5.addGeometry(Part.LineSegment(V(140, -145, 0), V(140, -65, 0)), False)
sketch5.addGeometry(Part.LineSegment(V(140, -65, 0), V(130, -65, 0)), False)
sketch5.addGeometry(Part.LineSegment(V(130, -65, 0), V(130, -59, 0)), False)
sketch5.addGeometry(Part.LineSegment(V(130, -59, 0), V(110, -59, 0)), False)
sketch5.addGeometry(Part.LineSegment(V(110, -59, 0), V(110, -65, 0)), False)
sketch5.addGeometry(Part.LineSegment(V(110, -65, 0), V(80, -65, 0)), False)
sketch5.addGeometry(Part.LineSegment(V(80, -65, 0), V(80, -59, 0)), False)
sketch5.addGeometry(Part.LineSegment(V(80, -59, 0), V(60, -59, 0)), False)
sketch5.addGeometry(Part.LineSegment(V(60, -59, 0), V(60, -65, 0)), False)
sketch5.addGeometry(Part.LineSegment(V(60, -65, 0), V(30, -65, 0)), False)
sketch5.addGeometry(Part.LineSegment(V(30, -65, 0), V(30, -59, 0)), False)
sketch5.addGeometry(Part.LineSegment(V(30, -59, 0), V(10, -59, 0)), False)
sketch5.addGeometry(Part.LineSegment(V(10, -59, 0), V(10, -65, 0)), False)
sketch5.addGeometry(Part.LineSegment(V(10, -65, 0), V(0, -65, 0)), False)
sketch5.addGeometry(Part.LineSegment(V(0, -65, 0), V(0, -128.9, 0)), False)
sketch5.addGeometry(Part.LineSegment(V(0, -128.9, 0), V(45, -128.9, 0)), False)
sketch5.addGeometry(Part.ArcOfCircle(Part.Circle(V(45, -133.9, 0), V(0, 0, 1), 5), math.radians(0), math.radians(90)), False)
sketch5.addGeometry(Part.ArcOfCircle(Part.Circle(V(45, -133.9, 0), V(0, 0, 1), 5), math.radians(-90), math.radians(0)), False)
sketch5.addGeometry(Part.LineSegment(V(45, -138.9, 0), V(0, -138.9, 0)), False)
sketch5.addGeometry(Part.LineSegment(V(0, -138.9, 0), V(0, -145, 0)), False)
sketch5.addGeometry(Part.LineSegment(V(0, -145, 0), V(10, -145, 0)), False)
sketch5.addGeometry(Part.LineSegment(V(10, -145, 0), V(10, -151, 0)), False)
sketch5.addGeometry(Part.LineSegment(V(10, -151, 0), V(30, -151, 0)), False)
sketch5.addGeometry(Part.LineSegment(V(30, -151, 0), V(30, -145, 0)), False)
sketch5.addGeometry(Part.LineSegment(V(30, -145, 0), V(60, -145, 0)), False)
sketch5.addGeometry(Part.LineSegment(V(60, -145, 0), V(60, -151, 0)), False)
sketch5.addGeometry(Part.LineSegment(V(60, -151, 0), V(80, -151, 0)), False)
sketch5.addGeometry(Part.LineSegment(V(80, -151, 0), V(80, -145, 0)), False)
sketch5.addGeometry(Part.LineSegment(V(80, -145, 0), V(110, -145, 0)), False)
sketch5.addConstraint(Sketcher.Constraint("Coincident", 0, 2, 1, 1))
sketch5.addConstraint(Sketcher.Constraint("Coincident", 1, 2, 2, 1))
sketch5.addConstraint(Sketcher.Constraint("Coincident", 2, 2, 3, 1))
sketch5.addConstraint(Sketcher.Constraint("Coincident", 3, 2, 4, 1))
sketch5.addConstraint(Sketcher.Constraint("Coincident", 4, 2, 5, 1))
sketch5.addConstraint(Sketcher.Constraint("Coincident", 5, 2, 6, 1))
sketch5.addConstraint(Sketcher.Constraint("Coincident", 6, 2, 7, 1))
sketch5.addConstraint(Sketcher.Constraint("Coincident", 7, 2, 8, 1))
sketch5.addConstraint(Sketcher.Constraint("Coincident", 8, 2, 9, 1))
sketch5.addConstraint(Sketcher.Constraint("Coincident", 9, 2, 10, 1))
sketch5.addConstraint(Sketcher.Constraint("Coincident", 10, 2, 11, 1))
sketch5.addConstraint(Sketcher.Constraint("Coincident", 11, 2, 12, 1))
sketch5.addConstraint(Sketcher.Constraint("Coincident", 12, 2, 13, 1))
sketch5.addConstraint(Sketcher.Constraint("Coincident", 13, 2, 14, 1))
sketch5.addConstraint(Sketcher.Constraint("Coincident", 14, 2, 15, 1))
sketch5.addConstraint(Sketcher.Constraint("Coincident", 15, 2, 16, 1))
sketch5.addConstraint(Sketcher.Constraint("Coincident", 16, 2, 17, 1))
sketch5.addConstraint(Sketcher.Constraint("Coincident", 17, 2, 18, 1))
sketch5.addConstraint(Sketcher.Constraint("Coincident", 18, 2, 19, 1))
sketch5.addConstraint(Sketcher.Constraint("Tangent", 19, 2, 20, 2))
sketch5.addConstraint(Sketcher.Constraint("Tangent", 20, 1, 21, 2))
sketch5.addConstraint(Sketcher.Constraint("Tangent", 21, 1, 22, 1))
sketch5.addConstraint(Sketcher.Constraint("Coincident", 22, 2, 23, 1))
sketch5.addConstraint(Sketcher.Constraint("Coincident", 23, 2, 24, 1))
sketch5.addConstraint(Sketcher.Constraint("Coincident", 24, 2, 25, 1))
sketch5.addConstraint(Sketcher.Constraint("Coincident", 25, 2, 26, 1))
sketch5.addConstraint(Sketcher.Constraint("Coincident", 26, 2, 27, 1))
sketch5.addConstraint(Sketcher.Constraint("Coincident", 27, 2, 28, 1))
sketch5.addConstraint(Sketcher.Constraint("Coincident", 28, 2, 29, 1))
sketch5.addConstraint(Sketcher.Constraint("Coincident", 29, 2, 30, 1))
sketch5.addConstraint(Sketcher.Constraint("Coincident", 30, 2, 31, 1))
sketch5.addConstraint(Sketcher.Constraint("Coincident", 31, 2, 32, 1))
sketch5.addConstraint(Sketcher.Constraint("Coincident", 32, 2, 0, 1))
sketch5.addConstraint(Sketcher.Constraint("Vertical", 0))
sketch5.addConstraint(Sketcher.Constraint("Horizontal", 1))
sketch5.addConstraint(Sketcher.Constraint("Vertical", 2))
sketch5.addConstraint(Sketcher.Constraint("Horizontal", 3))
sketch5.addConstraint(Sketcher.Constraint("Vertical", 4))
sketch5.addConstraint(Sketcher.Constraint("Horizontal", 5))
sketch5.addConstraint(Sketcher.Constraint("Vertical", 6))
sketch5.addConstraint(Sketcher.Constraint("Horizontal", 7))
sketch5.addConstraint(Sketcher.Constraint("Vertical", 8))
sketch5.addConstraint(Sketcher.Constraint("Horizontal", 9))
sketch5.addConstraint(Sketcher.Constraint("Vertical", 10))
sketch5.addConstraint(Sketcher.Constraint("Horizontal", 11))
sketch5.addConstraint(Sketcher.Constraint("Vertical", 12))
sketch5.addConstraint(Sketcher.Constraint("Horizontal", 13))
sketch5.addConstraint(Sketcher.Constraint("Vertical", 14))
sketch5.addConstraint(Sketcher.Constraint("Horizontal", 15))
sketch5.addConstraint(Sketcher.Constraint("Vertical", 16))
sketch5.addConstraint(Sketcher.Constraint("Horizontal", 17))
sketch5.addConstraint(Sketcher.Constraint("Vertical", 18))
sketch5.addConstraint(Sketcher.Constraint("Horizontal", 19))
sketch5.addConstraint(Sketcher.Constraint("Horizontal", 22))
sketch5.addConstraint(Sketcher.Constraint("Vertical", 23))
sketch5.addConstraint(Sketcher.Constraint("Horizontal", 24))
sketch5.addConstraint(Sketcher.Constraint("Vertical", 25))
sketch5.addConstraint(Sketcher.Constraint("Horizontal", 26))
sketch5.addConstraint(Sketcher.Constraint("Vertical", 27))
sketch5.addConstraint(Sketcher.Constraint("Horizontal", 28))
sketch5.addConstraint(Sketcher.Constraint("Vertical", 29))
sketch5.addConstraint(Sketcher.Constraint("Horizontal", 30))
sketch5.addConstraint(Sketcher.Constraint("Vertical", 31))
sketch5.addConstraint(Sketcher.Constraint("Horizontal", 32))
sketch5.addConstraint(Sketcher.Constraint("Equal", 20, 21))
sketch5.addConstraint(Sketcher.Constraint("PointOnObject", 17, 2, -2))
sketch5.addConstraint(Sketcher.Constraint("PointOnObject", 22, 2, -2))
sketch5.addConstraint(Sketcher.Constraint("Horizontal", 5, 2, 8, 2))
sketch5.addConstraint(Sketcher.Constraint("Horizontal", 7, 2, 10, 2))
sketch5.addConstraint(Sketcher.Constraint("Horizontal", 9, 2, 12, 2))
sketch5.addConstraint(Sketcher.Constraint("Horizontal", 11, 2, 14, 2))
sketch5.addConstraint(Sketcher.Constraint("Horizontal", 13, 2, 16, 2))
sketch5.addConstraint(Sketcher.Constraint("Horizontal", 21, 3, 20, 1))
sketch5.addConstraint(Sketcher.Constraint("Horizontal", 3, 2, 23, 2))
sketch5.addConstraint(Sketcher.Constraint("Horizontal", 1, 2, 25, 2))
sketch5.addConstraint(Sketcher.Constraint("Horizontal", 24, 2, 27, 2))
sketch5.addConstraint(Sketcher.Constraint("Horizontal", 26, 2, 29, 2))
sketch5.addConstraint(Sketcher.Constraint("Horizontal", 28, 2, 31, 2))
sketch5.addConstraint(Sketcher.Constraint("Vertical", 2, 2, 5, 2))
sketch5.addConstraint(Sketcher.Constraint("Vertical", 0, 2, 7, 2))
sketch5.addConstraint(Sketcher.Constraint("Vertical", 16, 2, 24, 2))
sketch5.addConstraint(Sketcher.Constraint("Vertical", 14, 2, 26, 2))
sketch5.addConstraint(Sketcher.Constraint("Vertical", 12, 2, 28, 2))
sketch5.addConstraint(Sketcher.Constraint("Vertical", 10, 2, 30, 2))
sketch5.addConstraint(Sketcher.Constraint("Equal", 7, 11))
sketch5.addConstraint(Sketcher.Constraint("Equal", 9, 13))
sketch5.addConstraint(Sketcher.Constraint("Equal", 11, 15))
sketch5.addConstraint(Sketcher.Constraint("Equal", 5, 17))
sketch5.addConstraint(Sketcher.Constraint("Equal", 2, 6))
sketch5.addConstraint(Sketcher.Constraint("Radius", 20, 5.0))
sketch5.addConstraint(Sketcher.Constraint("DistanceX", 1, 1, 1, 2, 20.0))
sketch5.addConstraint(Sketcher.Constraint("DistanceX", 3, 1, 3, 2, 10.0))
sketch5.addConstraint(Sketcher.Constraint("DistanceX", 9, 2, 9, 1, 30.0))
sketch5.addConstraint(Sketcher.Constraint("DistanceX", 19, 1, 19, 2, 45.0))
sketch5.addConstraint(Sketcher.Constraint("DistanceY", 0, 2, 0, 1, 6.0))
sketch5.addConstraint(Sketcher.Constraint("DistanceY", 4, 1, 4, 2, 80.0))
sketch5.addConstraint(Sketcher.Constraint("DistanceY", 0, 2, -1, 1, 151.0))
sketch5.addConstraint(Sketcher.Constraint("DistanceY", 18, 2, 18, 1, 63.890877))
pad5 = body5.newObject("PartDesign::Pad", "Pad004")
pad5.Profile = sketch5
pad5.Length = 6

doc.recompute()
